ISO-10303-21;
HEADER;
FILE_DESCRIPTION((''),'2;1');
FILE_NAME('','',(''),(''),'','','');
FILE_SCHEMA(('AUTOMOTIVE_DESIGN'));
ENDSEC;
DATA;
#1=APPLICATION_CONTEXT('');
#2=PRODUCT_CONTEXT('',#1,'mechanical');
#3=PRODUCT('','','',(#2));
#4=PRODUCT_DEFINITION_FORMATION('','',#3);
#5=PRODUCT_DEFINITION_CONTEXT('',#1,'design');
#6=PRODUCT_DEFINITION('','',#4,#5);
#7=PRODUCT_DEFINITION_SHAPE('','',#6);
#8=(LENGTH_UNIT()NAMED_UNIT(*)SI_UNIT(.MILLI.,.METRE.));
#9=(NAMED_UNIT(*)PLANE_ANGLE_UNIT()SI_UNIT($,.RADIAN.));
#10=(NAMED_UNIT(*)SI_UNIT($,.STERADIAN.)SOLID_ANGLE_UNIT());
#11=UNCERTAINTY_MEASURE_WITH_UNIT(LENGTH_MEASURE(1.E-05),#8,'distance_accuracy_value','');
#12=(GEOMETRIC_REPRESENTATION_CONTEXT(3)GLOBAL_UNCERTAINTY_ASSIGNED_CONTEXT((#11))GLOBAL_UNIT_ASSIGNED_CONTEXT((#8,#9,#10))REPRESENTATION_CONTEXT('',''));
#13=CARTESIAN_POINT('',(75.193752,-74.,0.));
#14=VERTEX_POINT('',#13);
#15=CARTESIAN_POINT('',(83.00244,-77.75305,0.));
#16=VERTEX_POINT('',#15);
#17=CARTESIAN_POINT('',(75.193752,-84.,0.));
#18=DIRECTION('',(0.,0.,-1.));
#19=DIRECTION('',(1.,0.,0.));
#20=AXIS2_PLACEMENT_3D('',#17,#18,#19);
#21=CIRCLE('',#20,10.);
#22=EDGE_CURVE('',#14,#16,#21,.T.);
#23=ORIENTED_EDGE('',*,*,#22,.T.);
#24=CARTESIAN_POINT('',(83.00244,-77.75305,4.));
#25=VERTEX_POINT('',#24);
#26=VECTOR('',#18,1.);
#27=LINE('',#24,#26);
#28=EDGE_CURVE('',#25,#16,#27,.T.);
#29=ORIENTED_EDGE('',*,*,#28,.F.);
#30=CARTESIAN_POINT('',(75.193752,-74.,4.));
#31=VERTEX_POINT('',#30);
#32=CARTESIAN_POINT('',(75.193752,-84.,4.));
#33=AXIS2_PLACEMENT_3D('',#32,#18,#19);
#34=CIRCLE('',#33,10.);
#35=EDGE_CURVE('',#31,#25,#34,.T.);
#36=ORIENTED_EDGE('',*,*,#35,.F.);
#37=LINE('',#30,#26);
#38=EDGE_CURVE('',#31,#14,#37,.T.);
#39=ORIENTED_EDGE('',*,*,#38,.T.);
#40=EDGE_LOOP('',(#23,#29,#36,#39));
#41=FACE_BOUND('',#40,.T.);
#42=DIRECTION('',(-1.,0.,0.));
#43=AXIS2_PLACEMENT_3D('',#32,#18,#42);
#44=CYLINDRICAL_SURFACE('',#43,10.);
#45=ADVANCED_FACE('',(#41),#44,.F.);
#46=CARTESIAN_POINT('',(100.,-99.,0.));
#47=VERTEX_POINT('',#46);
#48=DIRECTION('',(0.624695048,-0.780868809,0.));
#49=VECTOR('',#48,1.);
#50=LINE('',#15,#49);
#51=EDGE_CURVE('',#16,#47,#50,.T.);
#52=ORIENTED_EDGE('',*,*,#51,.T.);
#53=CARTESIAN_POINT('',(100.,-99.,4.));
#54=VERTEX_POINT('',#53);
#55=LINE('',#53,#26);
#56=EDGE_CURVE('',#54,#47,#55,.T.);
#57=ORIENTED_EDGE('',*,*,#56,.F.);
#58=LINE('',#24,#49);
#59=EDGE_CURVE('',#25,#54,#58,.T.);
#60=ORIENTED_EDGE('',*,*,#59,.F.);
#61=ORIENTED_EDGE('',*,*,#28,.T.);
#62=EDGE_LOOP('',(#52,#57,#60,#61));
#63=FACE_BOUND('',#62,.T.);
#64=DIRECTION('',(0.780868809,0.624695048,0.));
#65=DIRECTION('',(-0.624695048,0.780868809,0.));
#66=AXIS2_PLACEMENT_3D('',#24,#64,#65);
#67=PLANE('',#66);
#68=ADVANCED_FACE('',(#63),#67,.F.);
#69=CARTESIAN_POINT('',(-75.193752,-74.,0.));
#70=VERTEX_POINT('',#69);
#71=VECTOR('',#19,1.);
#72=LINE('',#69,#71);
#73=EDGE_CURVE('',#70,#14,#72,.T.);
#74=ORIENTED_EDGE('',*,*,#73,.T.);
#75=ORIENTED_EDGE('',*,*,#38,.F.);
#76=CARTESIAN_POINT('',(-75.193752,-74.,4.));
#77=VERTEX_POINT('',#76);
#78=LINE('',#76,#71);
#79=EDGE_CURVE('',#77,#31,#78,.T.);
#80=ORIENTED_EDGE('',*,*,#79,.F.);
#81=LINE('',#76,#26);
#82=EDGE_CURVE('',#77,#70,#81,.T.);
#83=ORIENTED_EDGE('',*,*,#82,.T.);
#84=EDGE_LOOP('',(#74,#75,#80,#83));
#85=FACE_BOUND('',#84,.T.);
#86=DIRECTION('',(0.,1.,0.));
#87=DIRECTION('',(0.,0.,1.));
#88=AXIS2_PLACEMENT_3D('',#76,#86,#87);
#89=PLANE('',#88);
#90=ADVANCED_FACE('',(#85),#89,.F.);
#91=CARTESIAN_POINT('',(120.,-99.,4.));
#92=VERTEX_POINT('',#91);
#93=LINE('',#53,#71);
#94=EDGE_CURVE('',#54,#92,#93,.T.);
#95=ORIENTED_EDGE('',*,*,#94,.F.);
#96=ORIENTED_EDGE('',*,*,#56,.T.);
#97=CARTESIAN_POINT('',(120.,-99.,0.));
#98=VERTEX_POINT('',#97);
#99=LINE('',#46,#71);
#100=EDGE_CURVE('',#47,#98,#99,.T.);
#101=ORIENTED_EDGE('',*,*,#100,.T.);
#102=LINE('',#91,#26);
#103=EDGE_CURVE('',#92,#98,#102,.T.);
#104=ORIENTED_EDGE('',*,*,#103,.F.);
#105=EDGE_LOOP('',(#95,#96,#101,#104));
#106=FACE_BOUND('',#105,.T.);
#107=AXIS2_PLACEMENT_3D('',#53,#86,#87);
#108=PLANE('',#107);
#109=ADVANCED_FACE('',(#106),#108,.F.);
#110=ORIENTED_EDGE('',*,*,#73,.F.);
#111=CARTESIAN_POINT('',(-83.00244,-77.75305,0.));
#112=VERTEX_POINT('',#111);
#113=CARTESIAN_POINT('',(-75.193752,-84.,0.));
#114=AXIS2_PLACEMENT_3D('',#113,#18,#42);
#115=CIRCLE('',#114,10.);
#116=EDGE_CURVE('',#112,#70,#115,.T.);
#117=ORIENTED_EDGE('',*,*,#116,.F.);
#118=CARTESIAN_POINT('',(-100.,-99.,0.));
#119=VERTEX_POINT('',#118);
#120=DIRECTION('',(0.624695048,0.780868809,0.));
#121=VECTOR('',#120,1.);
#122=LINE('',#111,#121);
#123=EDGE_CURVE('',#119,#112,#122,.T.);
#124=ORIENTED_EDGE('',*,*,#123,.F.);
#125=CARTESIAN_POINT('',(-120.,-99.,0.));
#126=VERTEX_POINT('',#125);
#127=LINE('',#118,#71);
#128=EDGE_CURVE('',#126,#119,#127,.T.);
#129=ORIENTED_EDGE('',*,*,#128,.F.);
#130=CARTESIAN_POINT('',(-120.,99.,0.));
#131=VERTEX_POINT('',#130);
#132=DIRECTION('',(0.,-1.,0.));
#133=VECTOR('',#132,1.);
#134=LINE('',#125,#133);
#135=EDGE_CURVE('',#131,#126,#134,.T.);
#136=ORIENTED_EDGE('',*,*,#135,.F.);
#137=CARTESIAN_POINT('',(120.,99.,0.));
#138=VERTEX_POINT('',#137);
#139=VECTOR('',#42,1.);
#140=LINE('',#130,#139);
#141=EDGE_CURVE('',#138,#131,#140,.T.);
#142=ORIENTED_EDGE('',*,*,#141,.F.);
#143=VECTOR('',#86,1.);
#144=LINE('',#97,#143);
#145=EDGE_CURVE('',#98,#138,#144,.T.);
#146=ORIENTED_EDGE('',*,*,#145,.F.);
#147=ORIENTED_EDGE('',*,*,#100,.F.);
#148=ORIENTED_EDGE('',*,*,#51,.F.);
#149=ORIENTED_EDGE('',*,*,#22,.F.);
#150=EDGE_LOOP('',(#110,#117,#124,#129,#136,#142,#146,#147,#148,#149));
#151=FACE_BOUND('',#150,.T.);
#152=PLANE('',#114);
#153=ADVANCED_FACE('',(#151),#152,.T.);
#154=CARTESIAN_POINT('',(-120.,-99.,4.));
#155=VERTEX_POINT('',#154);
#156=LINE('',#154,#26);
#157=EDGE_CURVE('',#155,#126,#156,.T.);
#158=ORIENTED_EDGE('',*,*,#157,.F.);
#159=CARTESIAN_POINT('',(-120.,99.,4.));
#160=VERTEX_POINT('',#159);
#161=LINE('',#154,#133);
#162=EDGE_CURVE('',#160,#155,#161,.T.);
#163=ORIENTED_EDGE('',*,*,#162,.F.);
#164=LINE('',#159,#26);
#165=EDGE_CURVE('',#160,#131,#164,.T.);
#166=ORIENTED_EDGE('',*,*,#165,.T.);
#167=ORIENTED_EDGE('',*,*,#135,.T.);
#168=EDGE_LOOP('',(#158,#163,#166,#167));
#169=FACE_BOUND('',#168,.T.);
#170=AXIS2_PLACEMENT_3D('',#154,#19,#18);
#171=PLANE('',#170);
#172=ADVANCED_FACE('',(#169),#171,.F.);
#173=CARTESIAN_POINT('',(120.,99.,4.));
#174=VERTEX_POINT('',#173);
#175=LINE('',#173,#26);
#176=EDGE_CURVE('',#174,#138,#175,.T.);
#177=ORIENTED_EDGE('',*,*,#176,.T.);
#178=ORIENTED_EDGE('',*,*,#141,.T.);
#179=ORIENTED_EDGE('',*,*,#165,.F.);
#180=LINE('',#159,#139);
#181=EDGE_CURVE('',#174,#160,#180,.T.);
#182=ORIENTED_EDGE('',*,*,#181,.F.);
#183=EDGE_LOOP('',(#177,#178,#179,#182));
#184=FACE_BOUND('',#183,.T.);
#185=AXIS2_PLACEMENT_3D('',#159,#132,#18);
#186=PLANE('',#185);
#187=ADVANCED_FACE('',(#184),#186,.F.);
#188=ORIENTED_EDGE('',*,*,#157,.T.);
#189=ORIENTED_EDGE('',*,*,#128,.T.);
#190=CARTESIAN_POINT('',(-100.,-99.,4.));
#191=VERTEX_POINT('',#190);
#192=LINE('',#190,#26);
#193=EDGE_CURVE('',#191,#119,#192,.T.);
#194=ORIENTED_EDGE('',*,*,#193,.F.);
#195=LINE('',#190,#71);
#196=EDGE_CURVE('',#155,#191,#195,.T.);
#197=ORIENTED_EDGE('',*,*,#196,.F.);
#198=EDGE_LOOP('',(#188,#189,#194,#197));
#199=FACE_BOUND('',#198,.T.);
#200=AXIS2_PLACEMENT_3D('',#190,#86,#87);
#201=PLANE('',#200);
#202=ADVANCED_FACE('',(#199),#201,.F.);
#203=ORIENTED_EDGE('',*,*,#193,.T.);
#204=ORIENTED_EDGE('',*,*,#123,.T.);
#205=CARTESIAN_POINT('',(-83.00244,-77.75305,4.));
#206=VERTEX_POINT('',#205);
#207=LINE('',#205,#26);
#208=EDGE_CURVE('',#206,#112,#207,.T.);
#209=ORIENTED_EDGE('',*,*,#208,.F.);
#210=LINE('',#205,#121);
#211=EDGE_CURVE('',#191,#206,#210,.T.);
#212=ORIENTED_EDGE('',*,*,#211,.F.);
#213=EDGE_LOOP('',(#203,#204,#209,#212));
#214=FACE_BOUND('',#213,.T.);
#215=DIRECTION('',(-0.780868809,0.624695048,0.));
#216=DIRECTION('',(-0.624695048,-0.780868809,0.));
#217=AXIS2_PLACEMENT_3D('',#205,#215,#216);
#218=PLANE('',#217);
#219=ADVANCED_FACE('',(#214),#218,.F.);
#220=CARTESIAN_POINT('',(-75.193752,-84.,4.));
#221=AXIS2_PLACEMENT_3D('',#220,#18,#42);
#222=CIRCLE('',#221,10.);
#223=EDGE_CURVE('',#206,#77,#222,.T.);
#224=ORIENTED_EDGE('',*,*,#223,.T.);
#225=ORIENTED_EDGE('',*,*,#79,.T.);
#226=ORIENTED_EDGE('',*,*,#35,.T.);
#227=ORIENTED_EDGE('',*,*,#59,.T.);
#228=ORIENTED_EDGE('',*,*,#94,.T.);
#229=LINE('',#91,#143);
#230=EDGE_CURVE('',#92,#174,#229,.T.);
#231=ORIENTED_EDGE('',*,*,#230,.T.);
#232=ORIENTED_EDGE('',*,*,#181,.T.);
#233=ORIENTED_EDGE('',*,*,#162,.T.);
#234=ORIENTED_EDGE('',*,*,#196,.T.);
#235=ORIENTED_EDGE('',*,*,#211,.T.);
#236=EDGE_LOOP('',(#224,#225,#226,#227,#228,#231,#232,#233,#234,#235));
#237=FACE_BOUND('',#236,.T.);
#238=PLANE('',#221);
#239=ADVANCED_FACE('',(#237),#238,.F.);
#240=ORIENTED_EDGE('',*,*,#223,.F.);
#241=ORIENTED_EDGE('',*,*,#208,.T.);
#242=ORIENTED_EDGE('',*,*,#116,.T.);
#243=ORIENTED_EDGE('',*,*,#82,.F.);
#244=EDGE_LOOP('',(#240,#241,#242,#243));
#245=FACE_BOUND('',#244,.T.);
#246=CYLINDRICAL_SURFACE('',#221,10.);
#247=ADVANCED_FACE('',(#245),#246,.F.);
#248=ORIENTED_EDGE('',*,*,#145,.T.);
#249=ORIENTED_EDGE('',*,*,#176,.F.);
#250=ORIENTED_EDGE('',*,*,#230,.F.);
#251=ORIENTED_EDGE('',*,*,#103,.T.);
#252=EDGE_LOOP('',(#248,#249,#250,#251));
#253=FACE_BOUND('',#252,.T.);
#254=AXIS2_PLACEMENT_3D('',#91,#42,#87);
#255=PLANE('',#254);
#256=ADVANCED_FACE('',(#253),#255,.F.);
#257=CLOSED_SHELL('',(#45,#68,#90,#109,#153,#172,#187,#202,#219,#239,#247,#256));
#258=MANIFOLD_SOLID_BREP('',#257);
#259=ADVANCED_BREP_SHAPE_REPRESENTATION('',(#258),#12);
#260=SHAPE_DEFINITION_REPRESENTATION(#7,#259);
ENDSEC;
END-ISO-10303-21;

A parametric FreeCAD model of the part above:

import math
import FreeCAD as App
import Part
import Sketcher

doc = App.newDocument("Part")
body = doc.addObject("PartDesign::Body", "Body")

sketch1 = body.newObject("Sketcher::SketchObject", "Sketch")
sketch1.AttachmentSupport = (doc.getObject("XY_Plane"), [""])
sketch1.MapMode = "FlatFace"
sketch1.addGeometry(Part.LineSegment(App.Vector(-120, 99, 0), App.Vector(-120, -99, 0)), False)
sketch1.addGeometry(Part.LineSegment(App.Vector(-120, -99, 0), App.Vector(-100, -99, 0)), False)
sketch1.addGeometry(Part.LineSegment(App.Vector(-100, -99, 0), App.Vector(-83, -78, 0)), False)
sketch1.addGeometry(Part.ArcOfCircle(Part.Circle(App.Vector(-75, -84, 0), App.Vector(0, 0, 1), 10), math.radians(90), math.radians(141)), False)
sketch1.addGeometry(Part.LineSegment(App.Vector(-75, -74, 0), App.Vector(75, -74, 0)), False)
sketch1.addGeometry(Part.ArcOfCircle(Part.Circle(App.Vector(75, -84, 0), App.Vector(0, 0, 1), 10), math.radians(39), math.radians(90)), False)
sketch1.addGeometry(Part.LineSegment(App.Vector(83, -78, 0), App.Vector(100, -99, 0)), False)
sketch1.addGeometry(Part.LineSegment(App.Vector(100, -99, 0), App.Vector(120, -99, 0)), False)
sketch1.addGeometry(Part.LineSegment(App.Vector(120, -99, 0), App.Vector(120, 99, 0)), False)
sketch1.addGeometry(Part.LineSegment(App.Vector(120, 99, 0), App.Vector(-120, 99, 0)), False)
sketch1.addConstraint(Sketcher.Constraint("Coincident", 0, 2, 1, 1))
sketch1.addConstraint(Sketcher.Constraint("Coincident", 1, 2, 2, 1))
sketch1.addConstraint(Sketcher.Constraint("Tangent", 2, 2, 3, 2))
sketch1.addConstraint(Sketcher.Constraint("Tangent", 3, 1, 4, 1))
sketch1.addConstraint(Sketcher.Constraint("Tangent", 4, 2, 5, 2))
sketch1.addConstraint(Sketcher.Constraint("Tangent", 5, 1, 6, 1))
sketch1.addConstraint(Sketcher.Constraint("Coincident", 6, 2, 7, 1))
sketch1.addConstraint(Sketcher.Constraint("Coincident", 7, 2, 8, 1))
sketch1.addConstraint(Sketcher.Constraint("Coincident", 8, 2, 9, 1))
sketch1.addConstraint(Sketcher.Constraint("Coincident", 9, 2, 0, 1))
sketch1.addConstraint(Sketcher.Constraint("Vertical", 0))
sketch1.addConstraint(Sketcher.Constraint("Horizontal", 1))
sketch1.addConstraint(Sketcher.Constraint("Horizontal", 4))
sketch1.addConstraint(Sketcher.Constraint("Horizontal", 7))
sketch1.addConstraint(Sketcher.Constraint("Vertical", 8))
sketch1.addConstraint(Sketcher.Constraint("Horizontal", 9))
sketch1.addConstraint(Sketcher.Constraint("Equal", 3, 5))
sketch1.addConstraint(Sketcher.Constraint("Symmetric", 0, 2, 8, 2, -1, 1))
sketch1.addConstraint(Sketcher.Constraint("Symmetric", 2, 2, 5, 1, -2))
sketch1.addConstraint(Sketcher.Constraint("Horizontal", 1, 2, 6, 2))
sketch1.addConstraint(Sketcher.Constraint("Radius", 3, 10.0))
sketch1.addConstraint(Sketcher.Constraint("DistanceX", 1, 1, 1, 2, 20.0))
sketch1.addConstraint(Sketcher.Constraint("DistanceX", 9, 2, 9, 1, 240.0))
sketch1.addConstraint(Sketcher.Constraint("DistanceY", 0, 2, 0, 1, 198.0))
sketch1.addConstraint(Sketcher.Constraint("DistanceY", 3, 3, -1, 1, 84.0))
sketch1.addConstraint(Sketcher.Constraint("DistanceX", 4, 1, 4, 2, 150.387503))
pad1 = body.newObject("PartDesign::Pad", "Pad")
pad1.Profile = sketch1
pad1.Length = 4

doc.recompute()
